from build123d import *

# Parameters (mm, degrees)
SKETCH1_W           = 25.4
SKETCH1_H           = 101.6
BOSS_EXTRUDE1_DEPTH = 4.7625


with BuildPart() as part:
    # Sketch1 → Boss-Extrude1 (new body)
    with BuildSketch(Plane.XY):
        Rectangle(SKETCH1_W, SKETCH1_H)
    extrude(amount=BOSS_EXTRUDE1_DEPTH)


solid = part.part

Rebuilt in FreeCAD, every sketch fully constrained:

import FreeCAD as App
import Part
import Sketcher

V = App.Vector
Q = App.Units.Quantity


def add_polygon(sketch, points):
    """Adds a closed chain of lines whose ends are joined by coincident constraints."""
    first, n = sketch.GeometryCount, len(points)
    for a, b in zip(points, points[1:] + points[:1]):
        sketch.addGeometry(Part.LineSegment(App.Vector(*a, 0), App.Vector(*b, 0)), False)
    for i in range(n):
        sketch.addConstraint(Sketcher.Constraint("Coincident", first + i, 2, first + (i + 1) % n, 1))

doc = App.newDocument("Part")
params = doc.addObject("Spreadsheet::Sheet", "Params")
for row, (alias, value) in enumerate([
    ("sketch1_width", "1 in"),
    ("sketch1_height", "4 in"),
    ("pad1_length", "0.1875 in"),
], start=1):
    params.set(f"A{row}", alias)
    params.set(f"B{row}", "=" + value)
    params.setAlias(f"B{row}", alias)

body = doc.addObject("PartDesign::Body", "Body")

sketch1 = body.newObject("Sketcher::SketchObject", "Sketch")
sketch1.AttachmentSupport = (doc.getObject("XY_Plane"), [""])
sketch1.MapMode = "FlatFace"
add_polygon(sketch1, [(-13, 51), (-13, -51), (13, -51), (13, 51)])
sketch1.addConstraint([
    Sketcher.Constraint("Vertical", 0),
    Sketcher.Constraint("Horizontal", 1),
    Sketcher.Constraint("Vertical", 2),
    Sketcher.Constraint("Horizontal", 3),
    Sketcher.Constraint("Symmetric", 0, 2, 2, 2, -1, 1),
    Sketcher.Constraint("DistanceX", 1, 1, 1, 2, Q("1 in")),
    Sketcher.Constraint("DistanceY", 0, 2, 0, 1, Q("4 in")),
])
sketch1.setExpression("Constraints[9]", "Params.sketch1_width")
sketch1.setExpression("Constraints[10]", "Params.sketch1_height")
pad1 = body.newObject("PartDesign::Pad", "Pad")
pad1.Profile = sketch1
pad1.setExpression("Length", "Params.pad1_length")

doc.recompute()
